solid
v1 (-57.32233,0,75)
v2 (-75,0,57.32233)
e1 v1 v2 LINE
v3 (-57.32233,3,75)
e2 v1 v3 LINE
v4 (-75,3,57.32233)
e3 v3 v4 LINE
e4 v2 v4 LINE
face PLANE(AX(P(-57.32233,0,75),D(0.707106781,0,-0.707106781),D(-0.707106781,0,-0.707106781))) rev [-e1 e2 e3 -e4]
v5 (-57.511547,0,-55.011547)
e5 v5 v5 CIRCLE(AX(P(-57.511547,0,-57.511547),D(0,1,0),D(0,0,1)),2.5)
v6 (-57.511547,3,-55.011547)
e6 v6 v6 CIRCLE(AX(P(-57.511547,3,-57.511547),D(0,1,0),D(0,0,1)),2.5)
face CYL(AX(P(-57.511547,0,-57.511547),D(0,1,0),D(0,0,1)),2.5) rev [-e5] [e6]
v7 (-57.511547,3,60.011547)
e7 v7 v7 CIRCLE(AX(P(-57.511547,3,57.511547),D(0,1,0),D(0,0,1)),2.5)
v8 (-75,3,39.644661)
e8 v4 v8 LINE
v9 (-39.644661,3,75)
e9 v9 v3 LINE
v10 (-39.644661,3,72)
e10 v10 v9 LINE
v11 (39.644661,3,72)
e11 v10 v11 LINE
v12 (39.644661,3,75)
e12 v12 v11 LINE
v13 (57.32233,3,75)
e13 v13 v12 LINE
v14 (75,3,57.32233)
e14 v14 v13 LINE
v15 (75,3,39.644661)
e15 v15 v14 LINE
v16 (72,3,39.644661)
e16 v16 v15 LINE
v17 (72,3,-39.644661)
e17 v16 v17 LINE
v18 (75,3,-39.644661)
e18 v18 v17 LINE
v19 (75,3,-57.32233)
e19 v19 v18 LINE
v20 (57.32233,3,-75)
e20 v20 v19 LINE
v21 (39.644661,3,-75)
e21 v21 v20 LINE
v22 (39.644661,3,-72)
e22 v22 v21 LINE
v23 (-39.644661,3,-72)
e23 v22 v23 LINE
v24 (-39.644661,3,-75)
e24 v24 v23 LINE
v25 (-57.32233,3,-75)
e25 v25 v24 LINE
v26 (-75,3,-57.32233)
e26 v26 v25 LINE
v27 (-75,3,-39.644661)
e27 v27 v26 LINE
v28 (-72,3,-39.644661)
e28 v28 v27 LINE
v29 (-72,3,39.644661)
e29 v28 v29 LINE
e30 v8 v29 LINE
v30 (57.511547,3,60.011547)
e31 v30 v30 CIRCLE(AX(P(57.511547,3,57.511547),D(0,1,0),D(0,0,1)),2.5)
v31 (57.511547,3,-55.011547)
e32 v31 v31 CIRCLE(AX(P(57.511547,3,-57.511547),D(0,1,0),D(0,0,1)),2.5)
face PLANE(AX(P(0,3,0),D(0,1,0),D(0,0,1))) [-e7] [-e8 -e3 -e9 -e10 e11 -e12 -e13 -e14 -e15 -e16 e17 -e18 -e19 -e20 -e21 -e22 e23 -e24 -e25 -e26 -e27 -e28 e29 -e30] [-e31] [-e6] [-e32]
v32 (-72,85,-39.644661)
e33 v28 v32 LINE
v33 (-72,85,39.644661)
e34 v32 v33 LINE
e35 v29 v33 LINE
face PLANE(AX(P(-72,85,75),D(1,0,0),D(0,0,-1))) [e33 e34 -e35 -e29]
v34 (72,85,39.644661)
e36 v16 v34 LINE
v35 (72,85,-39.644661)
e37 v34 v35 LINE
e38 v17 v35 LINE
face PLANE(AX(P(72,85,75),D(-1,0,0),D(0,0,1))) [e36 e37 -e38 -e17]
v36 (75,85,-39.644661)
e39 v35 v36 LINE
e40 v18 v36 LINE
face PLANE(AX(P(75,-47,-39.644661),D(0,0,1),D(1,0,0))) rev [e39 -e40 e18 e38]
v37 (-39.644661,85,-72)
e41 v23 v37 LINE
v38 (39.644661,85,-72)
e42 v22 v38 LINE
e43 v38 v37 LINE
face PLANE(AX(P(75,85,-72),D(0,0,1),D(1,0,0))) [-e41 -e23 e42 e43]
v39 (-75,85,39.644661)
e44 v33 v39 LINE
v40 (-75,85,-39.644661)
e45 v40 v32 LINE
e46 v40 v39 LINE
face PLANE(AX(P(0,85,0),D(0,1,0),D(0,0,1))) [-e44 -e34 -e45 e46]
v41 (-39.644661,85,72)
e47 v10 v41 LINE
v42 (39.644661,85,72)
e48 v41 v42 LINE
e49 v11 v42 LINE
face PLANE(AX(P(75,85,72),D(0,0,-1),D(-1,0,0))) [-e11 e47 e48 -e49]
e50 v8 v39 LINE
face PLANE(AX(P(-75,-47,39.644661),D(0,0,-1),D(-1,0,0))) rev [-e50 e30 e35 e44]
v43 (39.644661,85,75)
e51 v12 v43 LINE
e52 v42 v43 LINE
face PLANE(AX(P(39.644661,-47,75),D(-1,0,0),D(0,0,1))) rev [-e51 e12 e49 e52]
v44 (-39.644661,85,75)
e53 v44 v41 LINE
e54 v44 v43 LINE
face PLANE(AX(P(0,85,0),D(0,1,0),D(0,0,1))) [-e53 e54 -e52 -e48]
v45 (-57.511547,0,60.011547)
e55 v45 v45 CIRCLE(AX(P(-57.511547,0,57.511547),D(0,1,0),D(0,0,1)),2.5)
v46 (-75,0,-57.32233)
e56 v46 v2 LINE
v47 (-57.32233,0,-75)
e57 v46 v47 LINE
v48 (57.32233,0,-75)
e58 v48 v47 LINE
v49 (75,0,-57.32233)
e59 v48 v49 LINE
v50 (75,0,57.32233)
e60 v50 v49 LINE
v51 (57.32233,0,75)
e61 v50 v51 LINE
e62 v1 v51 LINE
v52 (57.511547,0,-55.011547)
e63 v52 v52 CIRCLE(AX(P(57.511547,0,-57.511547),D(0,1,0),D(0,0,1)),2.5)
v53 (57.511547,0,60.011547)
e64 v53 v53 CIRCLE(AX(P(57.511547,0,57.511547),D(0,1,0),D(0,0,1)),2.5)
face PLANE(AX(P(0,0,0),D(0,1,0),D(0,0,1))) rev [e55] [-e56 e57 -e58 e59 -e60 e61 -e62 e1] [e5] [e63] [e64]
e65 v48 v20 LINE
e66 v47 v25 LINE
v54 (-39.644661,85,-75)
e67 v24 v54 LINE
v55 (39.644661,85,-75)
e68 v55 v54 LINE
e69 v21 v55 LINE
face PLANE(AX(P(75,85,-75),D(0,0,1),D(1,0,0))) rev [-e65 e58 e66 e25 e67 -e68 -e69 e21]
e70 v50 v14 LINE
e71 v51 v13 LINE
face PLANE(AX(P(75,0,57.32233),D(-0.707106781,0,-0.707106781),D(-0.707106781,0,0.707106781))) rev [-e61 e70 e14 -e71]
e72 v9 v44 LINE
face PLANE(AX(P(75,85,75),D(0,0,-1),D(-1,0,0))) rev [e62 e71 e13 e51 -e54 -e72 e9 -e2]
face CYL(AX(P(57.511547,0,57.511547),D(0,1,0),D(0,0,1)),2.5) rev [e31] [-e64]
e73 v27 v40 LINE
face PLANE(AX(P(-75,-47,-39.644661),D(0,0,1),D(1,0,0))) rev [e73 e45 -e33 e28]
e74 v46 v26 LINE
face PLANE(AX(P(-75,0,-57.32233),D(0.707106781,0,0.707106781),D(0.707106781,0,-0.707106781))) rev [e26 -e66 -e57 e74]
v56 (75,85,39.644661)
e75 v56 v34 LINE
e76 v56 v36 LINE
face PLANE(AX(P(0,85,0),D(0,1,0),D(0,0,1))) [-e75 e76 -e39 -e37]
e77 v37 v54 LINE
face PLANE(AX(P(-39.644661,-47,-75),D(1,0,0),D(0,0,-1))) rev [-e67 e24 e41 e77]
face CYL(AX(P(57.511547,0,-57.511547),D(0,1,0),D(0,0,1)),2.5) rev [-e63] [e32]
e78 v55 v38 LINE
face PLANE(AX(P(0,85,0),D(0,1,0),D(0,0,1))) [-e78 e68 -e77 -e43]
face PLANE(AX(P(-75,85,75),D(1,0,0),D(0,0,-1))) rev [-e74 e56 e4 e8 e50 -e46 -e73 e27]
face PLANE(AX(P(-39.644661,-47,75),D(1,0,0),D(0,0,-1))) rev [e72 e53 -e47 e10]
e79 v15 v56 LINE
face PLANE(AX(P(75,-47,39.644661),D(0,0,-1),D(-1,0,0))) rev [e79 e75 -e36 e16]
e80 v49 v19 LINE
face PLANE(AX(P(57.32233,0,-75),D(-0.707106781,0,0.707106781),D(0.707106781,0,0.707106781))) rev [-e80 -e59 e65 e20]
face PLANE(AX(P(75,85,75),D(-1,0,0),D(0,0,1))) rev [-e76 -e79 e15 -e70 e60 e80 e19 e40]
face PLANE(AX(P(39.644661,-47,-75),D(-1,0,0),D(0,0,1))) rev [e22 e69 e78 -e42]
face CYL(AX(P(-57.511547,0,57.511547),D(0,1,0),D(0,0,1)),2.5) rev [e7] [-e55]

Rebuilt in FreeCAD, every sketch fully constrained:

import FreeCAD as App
import Part
import Sketcher
Q = App.Units.Quantity


def faces_at(feature, points):
    """Names of the faces that lie closest to the given points."""
    faces = feature.Shape.Faces
    near = lambda p: min(range(len(faces)), key=lambda i: faces[i].distToShape(Part.Vertex(*p))[0])
    return sorted({f"Face{near(p) + 1}" for p in points})

doc = App.newDocument("Part")
body = doc.addObject("PartDesign::Body", "Body")

sketch1 = doc.addObject("Sketcher::SketchObject", "Sketch")
body.addObject(sketch1)
sketch1.AttachmentSupport = (doc.XZ_Plane, [""])
sketch1.MapMode = "FlatFace"
sketch1.addGeometry(Part.LineSegment(App.Vector(-75, -75, 0), App.Vector(-75, 75, 0)), False)
sketch1.addGeometry(Part.LineSegment(App.Vector(-75, 75, 0), App.Vector(75, 75, 0)), False)
sketch1.addGeometry(Part.LineSegment(App.Vector(75, 75, 0), App.Vector(75, -75, 0)), False)
sketch1.addGeometry(Part.LineSegment(App.Vector(75, -75, 0), App.Vector(-75, -75, 0)), False)
sketch1.addConstraint(Sketcher.Constraint("Coincident", 0, 2, 1, 1))
sketch1.addConstraint(Sketcher.Constraint("Coincident", 1, 2, 2, 1))
sketch1.addConstraint(Sketcher.Constraint("Coincident", 2, 2, 3, 1))
sketch1.addConstraint(Sketcher.Constraint("Coincident", 3, 2, 0, 1))
sketch1.addConstraint(Sketcher.Constraint("Vertical", 0))
sketch1.addConstraint(Sketcher.Constraint("Horizontal", 1))
sketch1.addConstraint(Sketcher.Constraint("Vertical", 2))
sketch1.addConstraint(Sketcher.Constraint("Horizontal", 3))
sketch1.addConstraint(Sketcher.Constraint("Symmetric", 0, 2, 2, 2, -1, 1))
sketch1.addConstraint(Sketcher.Constraint("Equal", 3, 0))
sketch1.addConstraint(Sketcher.Constraint("DistanceX", 1, 1, 1, 2, Q("150 mm")))
pad1 = doc.addObject("PartDesign::Pad", "Pad")
body.addObject(pad1)
pad1.Profile = sketch1
pad1.Length = 85
pad1.Reversed = True
doc.recompute()

thickness = doc.addObject("PartDesign::Thickness", "Thickness")
body.addObject(thickness)
thickness.Base = (pad1, faces_at(pad1, [(0, 85, 0)]))
thickness.Value = 3
thickness.Reversed = True
thickness.Join = "Intersection"

sketch2 = doc.addObject("Sketcher::SketchObject", "Sketch001")
body.addObject(sketch2)
sketch2.AttachmentSupport = (doc.XZ_Plane, [""])
sketch2.MapMode = "FlatFace"
sketch2.AttachmentOffset = App.Placement(App.Vector(0, 0, -85), App.Rotation())
sketch2.addGeometry(Part.LineSegment(App.Vector(39.6, 75, 0), App.Vector(75, 75, 0)), False)
sketch2.addGeometry(Part.LineSegment(App.Vector(75, 75, 0), App.Vector(75, 39.6, 0)), False)
sketch2.addGeometry(Part.LineSegment(App.Vector(75, 39.6, 0), App.Vector(72, 39.6, 0)), False)
sketch2.addGeometry(Part.LineSegment(App.Vector(72, 39.6, 0), App.Vector(72, 72, 0)), False)
sketch2.addGeometry(Part.LineSegment(App.Vector(72, 72, 0), App.Vector(39.6, 72, 0)), False)
sketch2.addGeometry(Part.LineSegment(App.Vector(39.6, 72, 0), App.Vector(39.6, 75, 0)), False)
sketch2.addGeometry(Part.LineSegment(App.Vector(-39.6, 72, 0), App.Vector(-72, 72, 0)), False)
sketch2.addGeometry(Part.LineSegment(App.Vector(-72, 72, 0), App.Vector(-72, 39.6, 0)), False)
sketch2.addGeometry(Part.LineSegment(App.Vector(-72, 39.6, 0), App.Vector(-75, 39.6, 0)), False)
sketch2.addGeometry(Part.LineSegment(App.Vector(-75, 39.6, 0), App.Vector(-75, 75, 0)), False)
sketch2.addGeometry(Part.LineSegment(App.Vector(-75, 75, 0), App.Vector(-39.6, 75, 0)), False)
sketch2.addGeometry(Part.LineSegment(App.Vector(-39.6, 75, 0), App.Vector(-39.6, 72, 0)), False)
sketch2.addGeometry(Part.LineSegment(App.Vector(-72, -39.6, 0), App.Vector(-72, -72, 0)), False)
sketch2.addGeometry(Part.LineSegment(App.Vector(-72, -72, 0), App.Vector(-39.6, -72, 0)), False)
sketch2.addGeometry(Part.LineSegment(App.Vector(-39.6, -72, 0), App.Vector(-39.6, -75, 0)), False)
sketch2.addGeometry(Part.LineSegment(App.Vector(-39.6, -75, 0), App.Vector(-75, -75, 0)), False)
sketch2.addGeometry(Part.LineSegment(App.Vector(-75, -75, 0), App.Vector(-75, -39.6, 0)), False)
sketch2.addGeometry(Part.LineSegment(App.Vector(-75, -39.6, 0), App.Vector(-72, -39.6, 0)), False)
sketch2.addGeometry(Part.LineSegment(App.Vector(39.6, -72, 0), App.Vector(72, -72, 0)), False)
sketch2.addGeometry(Part.LineSegment(App.Vector(72, -72, 0), App.Vector(72, -39.6, 0)), False)
sketch2.addGeometry(Part.LineSegment(App.Vector(72, -39.6, 0), App.Vector(75, -39.6, 0)), False)
sketch2.addGeometry(Part.LineSegment(App.Vector(75, -39.6, 0), App.Vector(75, -75, 0)), False)
sketch2.addGeometry(Part.LineSegment(App.Vector(75, -75, 0), App.Vector(39.6, -75, 0)), False)
sketch2.addGeometry(Part.LineSegment(App.Vector(39.6, -75, 0), App.Vector(39.6, -72, 0)), False)
sketch2.addConstraint(Sketcher.Constraint("Coincident", 0, 2, 1, 1))
sketch2.addConstraint(Sketcher.Constraint("Coincident", 1, 2, 2, 1))
sketch2.addConstraint(Sketcher.Constraint("Coincident", 2, 2, 3, 1))
sketch2.addConstraint(Sketcher.Constraint("Coincident", 3, 2, 4, 1))
sketch2.addConstraint(Sketcher.Constraint("Coincident", 4, 2, 5, 1))
sketch2.addConstraint(Sketcher.Constraint("Coincident", 5, 2, 0, 1))
sketch2.addConstraint(Sketcher.Constraint("Coincident", 6, 2, 7, 1))
sketch2.addConstraint(Sketcher.Constraint("Coincident", 7, 2, 8, 1))
sketch2.addConstraint(Sketcher.Constraint("Coincident", 8, 2, 9, 1))
sketch2.addConstraint(Sketcher.Constraint("Coincident", 9, 2, 10, 1))
sketch2.addConstraint(Sketcher.Constraint("Coincident", 10, 2, 11, 1))
sketch2.addConstraint(Sketcher.Constraint("Coincident", 11, 2, 6, 1))
sketch2.addConstraint(Sketcher.Constraint("Coincident", 12, 2, 13, 1))
sketch2.addConstraint(Sketcher.Constraint("Coincident", 13, 2, 14, 1))
sketch2.addConstraint(Sketcher.Constraint("Coincident", 14, 2, 15, 1))
sketch2.addConstraint(Sketcher.Constraint("Coincident", 15, 2, 16, 1))
sketch2.addConstraint(Sketcher.Constraint("Coincident", 16, 2, 17, 1))
sketch2.addConstraint(Sketcher.Constraint("Coincident", 17, 2, 12, 1))
sketch2.addConstraint(Sketcher.Constraint("Coincident", 18, 2, 19, 1))
sketch2.addConstraint(Sketcher.Constraint("Coincident", 19, 2, 20, 1))
sketch2.addConstraint(Sketcher.Constraint("Coincident", 20, 2, 21, 1))
sketch2.addConstraint(Sketcher.Constraint("Coincident", 21, 2, 22, 1))
sketch2.addConstraint(Sketcher.Constraint("Coincident", 22, 2, 23, 1))
sketch2.addConstraint(Sketcher.Constraint("Coincident", 23, 2, 18, 1))
sketch2.addConstraint(Sketcher.Constraint("Horizontal", 0))
sketch2.addConstraint(Sketcher.Constraint("Vertical", 1))
sketch2.addConstraint(Sketcher.Constraint("Horizontal", 2))
sketch2.addConstraint(Sketcher.Constraint("Vertical", 3))
sketch2.addConstraint(Sketcher.Constraint("Horizontal", 4))
sketch2.addConstraint(Sketcher.Constraint("Vertical", 5))
sketch2.addConstraint(Sketcher.Constraint("Horizontal", 6))
sketch2.addConstraint(Sketcher.Constraint("Vertical", 7))
sketch2.addConstraint(Sketcher.Constraint("Horizontal", 8))
sketch2.addConstraint(Sketcher.Constraint("Vertical", 9))
sketch2.addConstraint(Sketcher.Constraint("Horizontal", 10))
sketch2.addConstraint(Sketcher.Constraint("Vertical", 11))
sketch2.addConstraint(Sketcher.Constraint("Vertical", 12))
sketch2.addConstraint(Sketcher.Constraint("Horizontal", 13))
sketch2.addConstraint(Sketcher.Constraint("Vertical", 14))
sketch2.addConstraint(Sketcher.Constraint("Horizontal", 15))
sketch2.addConstraint(Sketcher.Constraint("Vertical", 16))
sketch2.addConstraint(Sketcher.Constraint("Horizontal", 17))
sketch2.addConstraint(Sketcher.Constraint("Horizontal", 18))
sketch2.addConstraint(Sketcher.Constraint("Vertical", 19))
sketch2.addConstraint(Sketcher.Constraint("Horizontal", 20))
sketch2.addConstraint(Sketcher.Constraint("Vertical", 21))
sketch2.addConstraint(Sketcher.Constraint("Horizontal", 22))
sketch2.addConstraint(Sketcher.Constraint("Vertical", 23))
sketch2.addConstraint(Sketcher.Constraint("Symmetric", 3, 2, 12, 2, -1, 1))
sketch2.addConstraint(Sketcher.Constraint("Symmetric", 5, 2, 14, 2, -1, 1))
sketch2.addConstraint(Sketcher.Constraint("Symmetric", 1, 2, 16, 2, -1, 1))
sketch2.addConstraint(Sketcher.Constraint("Symmetric", 6, 2, 18, 2, -1, 1))
sketch2.addConstraint(Sketcher.Constraint("Symmetric", 8, 2, 20, 2, -1, 1))
sketch2.addConstraint(Sketcher.Constraint("Symmetric", 10, 2, 22, 2, -1, 1))
sketch2.addConstraint(Sketcher.Constraint("Symmetric", 3, 2, 6, 2, -2))
sketch2.addConstraint(Sketcher.Constraint("Symmetric", 1, 2, 8, 2, -2))
sketch2.addConstraint(Sketcher.Constraint("Symmetric", 5, 2, 10, 2, -2))
sketch2.addConstraint(Sketcher.Constraint("Equal", 22, 1))
sketch2.addConstraint(Sketcher.Constraint("Equal", 18, 3))
sketch2.addConstraint(Sketcher.Constraint("DistanceX", 2, 2, 2, 1, Q("3 mm")))
sketch2.addConstraint(Sketcher.Constraint("DistanceX", -1, 1, 0, 2, Q("75 mm")))
sketch2.addConstraint(Sketcher.Constraint("DistanceY", -1, 1, 0, 2, Q("75 mm")))
sketch2.addConstraint(Sketcher.Constraint("DistanceX", 0, 1, 0, 2, Q("35.355339 mm")))
pocket1 = doc.addObject("PartDesign::Pocket", "Pocket")
body.addObject(pocket1)
pocket1.Profile = sketch2
pocket1.Length = 82
pocket1.Reversed = True

sketch3 = doc.addObject("Sketcher::SketchObject", "Sketch002")
body.addObject(sketch3)
sketch3.AttachmentSupport = (doc.XZ_Plane, [""])
sketch3.MapMode = "FlatFace"
sketch3.AttachmentOffset = App.Placement(App.Vector(0, 0, -3), App.Rotation())
sketch3.addGeometry(Part.LineSegment(App.Vector(-75, 57, 0), App.Vector(-75, 75, 0)), False)
sketch3.addGeometry(Part.LineSegment(App.Vector(-75, 75, 0), App.Vector(-57, 75, 0)), False)
sketch3.addGeometry(Part.LineSegment(App.Vector(-57, 75, 0), App.Vector(-75, 57, 0)), False)
sketch3.addGeometry(Part.LineSegment(App.Vector(-75, -57, 0), App.Vector(-57, -75, 0)), False)
sketch3.addGeometry(Part.LineSegment(App.Vector(-57, -75, 0), App.Vector(-75, -75, 0)), False)
sketch3.addGeometry(Part.LineSegment(App.Vector(-75, -75, 0), App.Vector(-75, -57, 0)), False)
sketch3.addGeometry(Part.LineSegment(App.Vector(57, -75, 0), App.Vector(75, -57, 0)), False)
sketch3.addGeometry(Part.LineSegment(App.Vector(75, -57, 0), App.Vector(75, -75, 0)), False)
sketch3.addGeometry(Part.LineSegment(App.Vector(75, -75, 0), App.Vector(57, -75, 0)), False)
sketch3.addGeometry(Part.LineSegment(App.Vector(75, 57, 0), App.Vector(57, 75, 0)), False)
sketch3.addGeometry(Part.LineSegment(App.Vector(57, 75, 0), App.Vector(75, 75, 0)), False)
sketch3.addGeometry(Part.LineSegment(App.Vector(75, 75, 0), App.Vector(75, 57, 0)), False)
sketch3.addConstraint(Sketcher.Constraint("Coincident", 0, 2, 1, 1))
sketch3.addConstraint(Sketcher.Constraint("Coincident", 1, 2, 2, 1))
sketch3.addConstraint(Sketcher.Constraint("Coincident", 2, 2, 0, 1))
sketch3.addConstraint(Sketcher.Constraint("Coincident", 3, 2, 4, 1))
sketch3.addConstraint(Sketcher.Constraint("Coincident", 4, 2, 5, 1))
sketch3.addConstraint(Sketcher.Constraint("Coincident", 5, 2, 3, 1))
sketch3.addConstraint(Sketcher.Constraint("Coincident", 6, 2, 7, 1))
sketch3.addConstraint(Sketcher.Constraint("Coincident", 7, 2, 8, 1))
sketch3.addConstraint(Sketcher.Constraint("Coincident", 8, 2, 6, 1))
sketch3.addConstraint(Sketcher.Constraint("Coincident", 9, 2, 10, 1))
sketch3.addConstraint(Sketcher.Constraint("Coincident", 10, 2, 11, 1))
sketch3.addConstraint(Sketcher.Constraint("Coincident", 11, 2, 9, 1))
sketch3.addConstraint(Sketcher.Constraint("Vertical", 0))
sketch3.addConstraint(Sketcher.Constraint("Horizontal", 1))
sketch3.addConstraint(Sketcher.Constraint("Horizontal", 4))
sketch3.addConstraint(Sketcher.Constraint("Vertical", 5))
sketch3.addConstraint(Sketcher.Constraint("Vertical", 7))
sketch3.addConstraint(Sketcher.Constraint("Horizontal", 8))
sketch3.addConstraint(Sketcher.Constraint("Horizontal", 10))
sketch3.addConstraint(Sketcher.Constraint("Vertical", 11))
sketch3.addConstraint(Sketcher.Constraint("Symmetric", 2, 2, 6, 2, -1, 1))
sketch3.addConstraint(Sketcher.Constraint("Symmetric", 1, 2, 8, 2, -1, 1))
sketch3.addConstraint(Sketcher.Constraint("Symmetric", 3, 2, 9, 2, -1, 1))
sketch3.addConstraint(Sketcher.Constraint("Symmetric", 5, 2, 11, 2, -1, 1))
sketch3.addConstraint(Sketcher.Constraint("Symmetric", 5, 2, 6, 2, -2))
sketch3.addConstraint(Sketcher.Constraint("Symmetric", 3, 2, 8, 2, -2))
sketch3.addConstraint(Sketcher.Constraint("Perpendicular", 2, 3))
sketch3.addConstraint(Sketcher.Constraint("Distance", 2, Q("25 mm")))
sketch3.addConstraint(Sketcher.Constraint("DistanceX", 0, 2, -1, 1, Q("75 mm")))
sketch3.addConstraint(Sketcher.Constraint("DistanceY", -1, 1, 0, 2, Q("75 mm")))
pocket2 = doc.addObject("PartDesign::Pocket", "Pocket001")
body.addObject(pocket2)
pocket2.Profile = sketch3
pocket2.Type = "ThroughAll"
pocket2.Reversed = True

sketch4 = doc.addObject("Sketcher::SketchObject", "Sketch003")
body.addObject(sketch4)
sketch4.AttachmentSupport = (doc.XZ_Plane, [""])
sketch4.MapMode = "FlatFace"
sketch4.AttachmentOffset = App.Placement(App.Vector(0, 0, -3), App.Rotation())
sketch4.addGeometry(Part.Circle(App.Vector(57.5, -57.5, 0), App.Vector(0, 0, 1), 2.5), False)
sketch4.addGeometry(Part.Circle(App.Vector(57.5, 57.5, 0), App.Vector(0, 0, 1), 2.5), False)
sketch4.addGeometry(Part.Circle(App.Vector(-57.5, 57.5, 0), App.Vector(0, 0, 1), 2.5), False)
sketch4.addGeometry(Part.Circle(App.Vector(-57.5, -57.5, 0), App.Vector(0, 0, 1), 2.5), False)
sketch4.addConstraint(Sketcher.Constraint("Equal", 0, 1))
sketch4.addConstraint(Sketcher.Constraint("Equal", 1, 2))
sketch4.addConstraint(Sketcher.Constraint("Equal", 2, 3))
sketch4.addConstraint(Sketcher.Constraint("Symmetric", 0, 3, 2, 3, -1, 1))
sketch4.addConstraint(Sketcher.Constraint("Symmetric", 1, 3, 3, 3, -1, 1))
sketch4.addConstraint(Sketcher.Constraint("Symmetric", 1, 3, 2, 3, -2))
sketch4.addConstraint(Sketcher.Constraint("Diameter", 0, Q("5 mm")))
sketch4.addConstraint(Sketcher.Constraint("DistanceX", -1, 1, 0, 3, Q("57.511547 mm")))
sketch4.addConstraint(Sketcher.Constraint("DistanceY", 0, 3, -1, 1, Q("57.511547 mm")))
pocket3 = doc.addObject("PartDesign::Pocket", "Pocket002")
body.addObject(pocket3)
pocket3.Profile = sketch4
pocket3.Type = "ThroughAll"
pocket3.Reversed = True

doc.recompute()
